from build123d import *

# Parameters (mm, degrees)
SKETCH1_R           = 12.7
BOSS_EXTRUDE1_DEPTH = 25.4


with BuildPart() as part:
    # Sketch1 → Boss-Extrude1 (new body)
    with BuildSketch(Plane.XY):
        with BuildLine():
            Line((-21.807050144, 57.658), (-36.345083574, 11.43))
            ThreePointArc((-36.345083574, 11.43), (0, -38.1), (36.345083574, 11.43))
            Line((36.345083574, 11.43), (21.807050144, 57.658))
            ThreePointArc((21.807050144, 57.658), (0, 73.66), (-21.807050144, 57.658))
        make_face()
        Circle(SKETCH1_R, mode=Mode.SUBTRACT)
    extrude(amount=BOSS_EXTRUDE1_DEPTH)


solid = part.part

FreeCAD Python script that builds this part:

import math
import FreeCAD as App
import Part
import Sketcher
Q = App.Units.Quantity

doc = App.newDocument("Part")
body = doc.addObject("PartDesign::Body", "Body")

# Sketch on XY plane
sketch1 = body.newObject("Sketcher::SketchObject", "Sketch")
sketch1.AttachmentSupport = (doc.getObject("XY_Plane"), [""])
sketch1.MapMode = "FlatFace"
sketch1.addGeometry([
    Part.LineSegment(App.Vector(-22, 58, 0), App.Vector(-36, 11, 0)),  # 0
    Part.ArcOfCircle(Part.Circle(App.Vector(0, 0, 0), App.Vector(0, 0, 1), 38), math.radians(163), math.radians(377)),  # 1
    Part.LineSegment(App.Vector(36, 11, 0), App.Vector(22, 58, 0)),  # 2
    Part.ArcOfCircle(Part.Circle(App.Vector(0, 51, 0), App.Vector(0, 0, 1), 23), math.radians(17), math.radians(163)),  # 3
    Part.Circle(App.Vector(0, 0, 0), App.Vector(0, 0, 1), 13),  # 4
], False)
sketch1.addConstraint([
    Sketcher.Constraint("Tangent", 0, 2, 1, 1),
    Sketcher.Constraint("Tangent", 1, 2, 2, 1),
    Sketcher.Constraint("Tangent", 2, 2, 3, 1),
    Sketcher.Constraint("Tangent", 3, 2, 0, 1),
    Sketcher.Constraint("Coincident", 1, 3, -1, 1),
    Sketcher.Constraint("Coincident", 4, 3, -1, 1),
    Sketcher.Constraint("PointOnObject", 3, 3, -2),
    Sketcher.Constraint("Diameter", 4, Q("1 in")),
    Sketcher.Constraint("Radius", 1, Q("1.5 in")),
    Sketcher.Constraint("Radius", 3, Q("0.9 in")),
    Sketcher.Constraint("DistanceY", -1, 1, 3, 3, Q("2 in")),
])
pad1 = body.newObject("PartDesign::Pad", "Pad")
pad1.Profile = sketch1
pad1.Length = Q("1 in")

doc.recompute()
